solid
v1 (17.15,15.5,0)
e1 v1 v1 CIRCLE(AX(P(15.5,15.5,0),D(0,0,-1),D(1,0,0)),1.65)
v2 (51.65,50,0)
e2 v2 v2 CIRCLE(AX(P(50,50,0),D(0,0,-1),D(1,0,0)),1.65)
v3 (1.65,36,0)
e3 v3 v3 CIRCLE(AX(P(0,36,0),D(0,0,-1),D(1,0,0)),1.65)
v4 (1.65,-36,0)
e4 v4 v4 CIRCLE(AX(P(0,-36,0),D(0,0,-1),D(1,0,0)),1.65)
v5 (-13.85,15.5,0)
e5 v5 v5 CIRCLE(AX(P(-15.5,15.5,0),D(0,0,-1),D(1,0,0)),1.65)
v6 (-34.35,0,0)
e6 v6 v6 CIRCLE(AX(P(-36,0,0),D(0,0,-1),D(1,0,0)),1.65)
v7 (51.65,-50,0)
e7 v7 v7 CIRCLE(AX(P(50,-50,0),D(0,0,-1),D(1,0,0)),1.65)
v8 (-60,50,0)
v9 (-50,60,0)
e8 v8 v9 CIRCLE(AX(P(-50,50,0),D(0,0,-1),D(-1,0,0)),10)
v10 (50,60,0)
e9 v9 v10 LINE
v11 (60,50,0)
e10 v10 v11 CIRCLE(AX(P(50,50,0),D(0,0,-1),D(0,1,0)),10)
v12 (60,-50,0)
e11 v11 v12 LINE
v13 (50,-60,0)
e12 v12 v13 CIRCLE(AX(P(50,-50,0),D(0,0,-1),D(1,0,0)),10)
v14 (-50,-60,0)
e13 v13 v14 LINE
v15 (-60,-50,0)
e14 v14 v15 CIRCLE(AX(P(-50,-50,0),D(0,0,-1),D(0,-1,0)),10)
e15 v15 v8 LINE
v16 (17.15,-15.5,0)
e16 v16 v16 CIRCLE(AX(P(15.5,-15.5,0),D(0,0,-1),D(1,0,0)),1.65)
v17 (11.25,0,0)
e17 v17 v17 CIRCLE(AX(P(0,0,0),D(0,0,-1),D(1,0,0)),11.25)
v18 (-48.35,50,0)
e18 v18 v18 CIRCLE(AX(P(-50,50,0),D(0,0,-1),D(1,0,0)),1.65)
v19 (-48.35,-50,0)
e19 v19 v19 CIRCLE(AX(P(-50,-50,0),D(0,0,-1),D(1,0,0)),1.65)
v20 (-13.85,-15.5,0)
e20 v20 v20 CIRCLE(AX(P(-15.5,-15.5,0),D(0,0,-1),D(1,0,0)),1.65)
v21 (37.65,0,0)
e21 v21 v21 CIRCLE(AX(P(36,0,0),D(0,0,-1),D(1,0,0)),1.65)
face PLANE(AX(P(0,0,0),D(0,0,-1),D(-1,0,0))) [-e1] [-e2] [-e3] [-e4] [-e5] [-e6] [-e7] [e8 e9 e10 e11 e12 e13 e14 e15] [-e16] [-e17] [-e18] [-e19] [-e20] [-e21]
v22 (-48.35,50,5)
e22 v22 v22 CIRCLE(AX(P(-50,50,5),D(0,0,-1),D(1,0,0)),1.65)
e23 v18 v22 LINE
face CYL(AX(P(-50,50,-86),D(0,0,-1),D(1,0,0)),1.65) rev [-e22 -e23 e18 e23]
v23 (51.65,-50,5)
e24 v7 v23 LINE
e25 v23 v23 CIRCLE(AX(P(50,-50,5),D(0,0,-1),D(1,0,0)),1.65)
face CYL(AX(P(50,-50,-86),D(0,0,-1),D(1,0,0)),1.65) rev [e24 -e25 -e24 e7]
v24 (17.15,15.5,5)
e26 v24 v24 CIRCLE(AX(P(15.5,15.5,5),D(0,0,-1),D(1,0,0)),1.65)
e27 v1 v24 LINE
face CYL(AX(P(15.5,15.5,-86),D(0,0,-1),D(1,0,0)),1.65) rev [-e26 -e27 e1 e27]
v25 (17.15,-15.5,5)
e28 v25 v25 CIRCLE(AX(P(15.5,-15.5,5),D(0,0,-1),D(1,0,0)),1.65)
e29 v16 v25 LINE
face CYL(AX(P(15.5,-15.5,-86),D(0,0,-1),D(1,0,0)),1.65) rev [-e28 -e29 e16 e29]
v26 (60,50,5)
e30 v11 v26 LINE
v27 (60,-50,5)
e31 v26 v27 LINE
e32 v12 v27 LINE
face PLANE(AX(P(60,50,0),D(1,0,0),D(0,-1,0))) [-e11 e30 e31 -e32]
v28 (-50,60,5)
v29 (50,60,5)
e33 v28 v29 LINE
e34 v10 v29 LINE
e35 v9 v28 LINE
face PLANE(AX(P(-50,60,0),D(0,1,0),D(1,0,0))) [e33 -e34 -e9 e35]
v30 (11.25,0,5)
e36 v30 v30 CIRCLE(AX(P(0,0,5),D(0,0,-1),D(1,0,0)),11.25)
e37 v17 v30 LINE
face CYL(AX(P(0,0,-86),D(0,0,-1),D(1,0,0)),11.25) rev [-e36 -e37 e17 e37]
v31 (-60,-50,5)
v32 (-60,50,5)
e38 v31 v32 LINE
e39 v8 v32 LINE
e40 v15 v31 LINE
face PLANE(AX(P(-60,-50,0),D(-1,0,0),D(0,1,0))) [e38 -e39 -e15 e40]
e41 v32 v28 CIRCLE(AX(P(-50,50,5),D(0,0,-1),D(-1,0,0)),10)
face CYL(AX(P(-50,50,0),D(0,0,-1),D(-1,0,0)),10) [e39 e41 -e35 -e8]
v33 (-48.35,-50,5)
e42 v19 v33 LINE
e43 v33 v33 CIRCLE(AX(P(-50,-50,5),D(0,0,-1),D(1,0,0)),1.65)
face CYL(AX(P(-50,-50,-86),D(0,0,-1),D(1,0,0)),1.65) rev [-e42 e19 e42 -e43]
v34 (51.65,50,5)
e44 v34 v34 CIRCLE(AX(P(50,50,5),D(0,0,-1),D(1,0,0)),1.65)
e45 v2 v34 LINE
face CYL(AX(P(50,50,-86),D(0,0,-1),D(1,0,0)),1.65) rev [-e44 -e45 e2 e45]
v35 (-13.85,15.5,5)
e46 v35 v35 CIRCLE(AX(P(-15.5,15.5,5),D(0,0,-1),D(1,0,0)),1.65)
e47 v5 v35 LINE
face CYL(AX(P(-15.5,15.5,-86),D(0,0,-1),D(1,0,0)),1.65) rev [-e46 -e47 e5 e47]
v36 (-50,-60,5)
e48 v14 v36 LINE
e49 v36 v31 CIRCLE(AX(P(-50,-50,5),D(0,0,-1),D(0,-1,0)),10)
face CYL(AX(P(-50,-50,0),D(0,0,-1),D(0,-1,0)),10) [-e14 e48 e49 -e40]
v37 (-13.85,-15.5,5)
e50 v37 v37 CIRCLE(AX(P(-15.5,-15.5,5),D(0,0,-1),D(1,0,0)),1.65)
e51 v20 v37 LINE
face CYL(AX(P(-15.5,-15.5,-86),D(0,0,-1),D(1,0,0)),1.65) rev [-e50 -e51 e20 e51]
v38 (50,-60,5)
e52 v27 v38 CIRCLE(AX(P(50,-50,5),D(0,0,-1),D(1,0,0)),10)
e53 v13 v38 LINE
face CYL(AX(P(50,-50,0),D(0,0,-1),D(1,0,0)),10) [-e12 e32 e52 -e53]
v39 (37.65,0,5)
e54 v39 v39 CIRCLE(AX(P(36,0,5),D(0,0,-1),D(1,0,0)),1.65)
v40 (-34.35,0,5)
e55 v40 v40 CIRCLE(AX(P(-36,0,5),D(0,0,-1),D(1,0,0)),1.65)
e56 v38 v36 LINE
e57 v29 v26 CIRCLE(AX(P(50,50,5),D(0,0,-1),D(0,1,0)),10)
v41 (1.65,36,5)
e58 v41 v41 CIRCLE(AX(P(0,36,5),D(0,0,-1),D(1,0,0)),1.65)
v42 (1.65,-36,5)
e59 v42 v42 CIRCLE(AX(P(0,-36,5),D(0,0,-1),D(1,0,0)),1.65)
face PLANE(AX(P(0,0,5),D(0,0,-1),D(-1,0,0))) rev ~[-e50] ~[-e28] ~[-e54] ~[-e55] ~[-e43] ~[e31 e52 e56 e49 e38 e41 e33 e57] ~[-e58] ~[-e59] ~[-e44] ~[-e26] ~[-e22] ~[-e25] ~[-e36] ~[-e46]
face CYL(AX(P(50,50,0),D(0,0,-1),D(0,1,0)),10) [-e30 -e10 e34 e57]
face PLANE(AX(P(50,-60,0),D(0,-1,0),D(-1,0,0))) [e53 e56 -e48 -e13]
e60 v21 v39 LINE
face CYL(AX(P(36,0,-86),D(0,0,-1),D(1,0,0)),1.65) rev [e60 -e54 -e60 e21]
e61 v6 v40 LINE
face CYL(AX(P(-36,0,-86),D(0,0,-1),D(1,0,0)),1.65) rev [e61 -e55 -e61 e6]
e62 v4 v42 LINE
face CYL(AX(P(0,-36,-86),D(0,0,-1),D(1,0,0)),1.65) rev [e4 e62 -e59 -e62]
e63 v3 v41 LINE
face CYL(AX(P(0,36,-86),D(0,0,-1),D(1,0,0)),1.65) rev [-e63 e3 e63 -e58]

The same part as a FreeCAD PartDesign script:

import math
import FreeCAD as App
import Part
import Sketcher

doc = App.newDocument("Part")
body = doc.addObject("PartDesign::Body", "Body")

# Sketch on XY plane
sketch1 = body.newObject("Sketcher::SketchObject", "Sketch")
sketch1.AttachmentSupport = (doc.getObject("XY_Plane"), [""])
sketch1.MapMode = "FlatFace"
sketch1.addGeometry(Part.LineSegment(App.Vector(-60, 50, 0), App.Vector(-60, -50, 0)), False)
sketch1.addGeometry(Part.ArcOfCircle(Part.Circle(App.Vector(-50, -50, 0), App.Vector(0, 0, 1), 10), math.radians(180), math.radians(270)), False)
sketch1.addGeometry(Part.LineSegment(App.Vector(-50, -60, 0), App.Vector(50, -60, 0)), False)
sketch1.addGeometry(Part.ArcOfCircle(Part.Circle(App.Vector(50, -50, 0), App.Vector(0, 0, 1), 10), math.radians(-90), math.radians(0)), False)
sketch1.addGeometry(Part.LineSegment(App.Vector(60, -50, 0), App.Vector(60, 50, 0)), False)
sketch1.addGeometry(Part.ArcOfCircle(Part.Circle(App.Vector(50, 50, 0), App.Vector(0, 0, 1), 10), math.radians(0), math.radians(90)), False)
sketch1.addGeometry(Part.LineSegment(App.Vector(50, 60, 0), App.Vector(-50, 60, 0)), False)
sketch1.addGeometry(Part.ArcOfCircle(Part.Circle(App.Vector(-50, 50, 0), App.Vector(0, 0, 1), 10), math.radians(90), math.radians(180)), False)
sketch1.addConstraint(Sketcher.Constraint("Tangent", 0, 2, 1, 1))
sketch1.addConstraint(Sketcher.Constraint("Tangent", 1, 2, 2, 1))
sketch1.addConstraint(Sketcher.Constraint("Tangent", 2, 2, 3, 1))
sketch1.addConstraint(Sketcher.Constraint("Tangent", 3, 2, 4, 1))
sketch1.addConstraint(Sketcher.Constraint("Tangent", 4, 2, 5, 1))
sketch1.addConstraint(Sketcher.Constraint("Tangent", 5, 2, 6, 1))
sketch1.addConstraint(Sketcher.Constraint("Tangent", 6, 2, 7, 1))
sketch1.addConstraint(Sketcher.Constraint("Tangent", 7, 2, 0, 1))
sketch1.addConstraint(Sketcher.Constraint("Vertical", 0))
sketch1.addConstraint(Sketcher.Constraint("Horizontal", 2))
sketch1.addConstraint(Sketcher.Constraint("Vertical", 4))
sketch1.addConstraint(Sketcher.Constraint("Horizontal", 6))
sketch1.addConstraint(Sketcher.Constraint("Equal", 1, 3))
sketch1.addConstraint(Sketcher.Constraint("Equal", 3, 5))
sketch1.addConstraint(Sketcher.Constraint("Equal", 5, 7))
sketch1.addConstraint(Sketcher.Constraint("Symmetric", 1, 3, 5, 3, -1, 1))
sketch1.addConstraint(Sketcher.Constraint("Equal", 6, 0))
sketch1.addConstraint(Sketcher.Constraint("Radius", 1, 10.0))
sketch1.addConstraint(Sketcher.Constraint("DistanceX", 2, 1, 2, 2, 100.0))
pad1 = body.newObject("PartDesign::Pad", "Pad")
pad1.Profile = sketch1
pad1.Length = 5

# Sketch on XY plane
sketch2 = body.newObject("Sketcher::SketchObject", "Sketch001")
sketch2.AttachmentSupport = (doc.getObject("XY_Plane"), [""])
sketch2.MapMode = "FlatFace"
sketch2.addGeometry(Part.Circle(App.Vector(-50, -50, 0), App.Vector(0, 0, 1), 1.6), False)
sketch2.addGeometry(Part.Circle(App.Vector(0, -36, 0), App.Vector(0, 0, 1), 1.6), False)
sketch2.addGeometry(Part.Circle(App.Vector(-15.5, -15.5, 0), App.Vector(0, 0, 1), 1.6), False)
sketch2.addGeometry(Part.Circle(App.Vector(0, 0, 0), App.Vector(0, 0, 1), 11.2), False)
sketch2.addGeometry(Part.Circle(App.Vector(50, -50, 0), App.Vector(0, 0, 1), 1.6), False)
sketch2.addGeometry(Part.Circle(App.Vector(15.5, -15.5, 0), App.Vector(0, 0, 1), 1.6), False)
sketch2.addGeometry(Part.Circle(App.Vector(36, 0, 0), App.Vector(0, 0, 1), 1.6), False)
sketch2.addGeometry(Part.Circle(App.Vector(-36, 0, 0), App.Vector(0, 0, 1), 1.6), False)
sketch2.addGeometry(Part.Circle(App.Vector(-15.5, 15.5, 0), App.Vector(0, 0, 1), 1.6), False)
sketch2.addGeometry(Part.Circle(App.Vector(-50, 50, 0), App.Vector(0, 0, 1), 1.6), False)
sketch2.addGeometry(Part.Circle(App.Vector(0, 36, 0), App.Vector(0, 0, 1), 1.6), False)
sketch2.addGeometry(Part.Circle(App.Vector(15.5, 15.5, 0), App.Vector(0, 0, 1), 1.6), False)
sketch2.addGeometry(Part.Circle(App.Vector(50, 50, 0), App.Vector(0, 0, 1), 1.6), False)
sketch2.addConstraint(Sketcher.Constraint("Coincident", 3, 3, -1, 1))
sketch2.addConstraint(Sketcher.Constraint("Equal", 0, 1))
sketch2.addConstraint(Sketcher.Constraint("Equal", 1, 2))
sketch2.addConstraint(Sketcher.Constraint("Equal", 2, 4))
sketch2.addConstraint(Sketcher.Constraint("Equal", 4, 5))
sketch2.addConstraint(Sketcher.Constraint("Equal", 5, 6))
sketch2.addConstraint(Sketcher.Constraint("Equal", 6, 7))
sketch2.addConstraint(Sketcher.Constraint("Equal", 7, 8))
sketch2.addConstraint(Sketcher.Constraint("Equal", 8, 9))
sketch2.addConstraint(Sketcher.Constraint("Equal", 9, 10))
sketch2.addConstraint(Sketcher.Constraint("Equal", 10, 11))
sketch2.addConstraint(Sketcher.Constraint("Equal", 11, 12))
sketch2.addConstraint(Sketcher.Constraint("Symmetric", 6, 3, 7, 3, -1, 1))
sketch2.addConstraint(Sketcher.Constraint("Symmetric", 5, 3, 8, 3, -1, 1))
sketch2.addConstraint(Sketcher.Constraint("Symmetric", 4, 3, 9, 3, -1, 1))
sketch2.addConstraint(Sketcher.Constraint("Symmetric", 1, 3, 10, 3, -1, 1))
sketch2.addConstraint(Sketcher.Constraint("Symmetric", 2, 3, 11, 3, -1, 1))
sketch2.addConstraint(Sketcher.Constraint("Symmetric", 0, 3, 12, 3, -1, 1))
sketch2.addConstraint(Sketcher.Constraint("Symmetric", 0, 3, 4, 3, -2))
sketch2.addConstraint(Sketcher.Constraint("Symmetric", 2, 3, 5, 3, -2))
sketch2.addConstraint(Sketcher.Constraint("PointOnObject", 1, 3, -2))
sketch2.addConstraint(Sketcher.Constraint("PointOnObject", 6, 3, -1))
sketch2.addConstraint(Sketcher.Constraint("Diameter", 0, 3.3))
sketch2.addConstraint(Sketcher.Constraint("Diameter", 3, 22.5))
sketch2.addConstraint(Sketcher.Constraint("DistanceX", 0, 3, -1, 1, 50.0))
sketch2.addConstraint(Sketcher.Constraint("DistanceY", 0, 3, -1, 1, 50.0))
sketch2.addConstraint(Sketcher.Constraint("DistanceY", 1, 3, -1, 1, 36.0))
sketch2.addConstraint(Sketcher.Constraint("DistanceX", -1, 1, 6, 3, 36.0))
sketch2.addConstraint(Sketcher.Constraint("DistanceX", 2, 3, 5, 3, 31.0))
sketch2.addConstraint(Sketcher.Constraint("DistanceY", 2, 3, 8, 3, 31.0))
pocket1 = body.newObject("PartDesign::Pocket", "Pocket")
pocket1.Profile = sketch2
pocket1.Type = "ThroughAll"
pocket1.Midplane = True

doc.recompute()
